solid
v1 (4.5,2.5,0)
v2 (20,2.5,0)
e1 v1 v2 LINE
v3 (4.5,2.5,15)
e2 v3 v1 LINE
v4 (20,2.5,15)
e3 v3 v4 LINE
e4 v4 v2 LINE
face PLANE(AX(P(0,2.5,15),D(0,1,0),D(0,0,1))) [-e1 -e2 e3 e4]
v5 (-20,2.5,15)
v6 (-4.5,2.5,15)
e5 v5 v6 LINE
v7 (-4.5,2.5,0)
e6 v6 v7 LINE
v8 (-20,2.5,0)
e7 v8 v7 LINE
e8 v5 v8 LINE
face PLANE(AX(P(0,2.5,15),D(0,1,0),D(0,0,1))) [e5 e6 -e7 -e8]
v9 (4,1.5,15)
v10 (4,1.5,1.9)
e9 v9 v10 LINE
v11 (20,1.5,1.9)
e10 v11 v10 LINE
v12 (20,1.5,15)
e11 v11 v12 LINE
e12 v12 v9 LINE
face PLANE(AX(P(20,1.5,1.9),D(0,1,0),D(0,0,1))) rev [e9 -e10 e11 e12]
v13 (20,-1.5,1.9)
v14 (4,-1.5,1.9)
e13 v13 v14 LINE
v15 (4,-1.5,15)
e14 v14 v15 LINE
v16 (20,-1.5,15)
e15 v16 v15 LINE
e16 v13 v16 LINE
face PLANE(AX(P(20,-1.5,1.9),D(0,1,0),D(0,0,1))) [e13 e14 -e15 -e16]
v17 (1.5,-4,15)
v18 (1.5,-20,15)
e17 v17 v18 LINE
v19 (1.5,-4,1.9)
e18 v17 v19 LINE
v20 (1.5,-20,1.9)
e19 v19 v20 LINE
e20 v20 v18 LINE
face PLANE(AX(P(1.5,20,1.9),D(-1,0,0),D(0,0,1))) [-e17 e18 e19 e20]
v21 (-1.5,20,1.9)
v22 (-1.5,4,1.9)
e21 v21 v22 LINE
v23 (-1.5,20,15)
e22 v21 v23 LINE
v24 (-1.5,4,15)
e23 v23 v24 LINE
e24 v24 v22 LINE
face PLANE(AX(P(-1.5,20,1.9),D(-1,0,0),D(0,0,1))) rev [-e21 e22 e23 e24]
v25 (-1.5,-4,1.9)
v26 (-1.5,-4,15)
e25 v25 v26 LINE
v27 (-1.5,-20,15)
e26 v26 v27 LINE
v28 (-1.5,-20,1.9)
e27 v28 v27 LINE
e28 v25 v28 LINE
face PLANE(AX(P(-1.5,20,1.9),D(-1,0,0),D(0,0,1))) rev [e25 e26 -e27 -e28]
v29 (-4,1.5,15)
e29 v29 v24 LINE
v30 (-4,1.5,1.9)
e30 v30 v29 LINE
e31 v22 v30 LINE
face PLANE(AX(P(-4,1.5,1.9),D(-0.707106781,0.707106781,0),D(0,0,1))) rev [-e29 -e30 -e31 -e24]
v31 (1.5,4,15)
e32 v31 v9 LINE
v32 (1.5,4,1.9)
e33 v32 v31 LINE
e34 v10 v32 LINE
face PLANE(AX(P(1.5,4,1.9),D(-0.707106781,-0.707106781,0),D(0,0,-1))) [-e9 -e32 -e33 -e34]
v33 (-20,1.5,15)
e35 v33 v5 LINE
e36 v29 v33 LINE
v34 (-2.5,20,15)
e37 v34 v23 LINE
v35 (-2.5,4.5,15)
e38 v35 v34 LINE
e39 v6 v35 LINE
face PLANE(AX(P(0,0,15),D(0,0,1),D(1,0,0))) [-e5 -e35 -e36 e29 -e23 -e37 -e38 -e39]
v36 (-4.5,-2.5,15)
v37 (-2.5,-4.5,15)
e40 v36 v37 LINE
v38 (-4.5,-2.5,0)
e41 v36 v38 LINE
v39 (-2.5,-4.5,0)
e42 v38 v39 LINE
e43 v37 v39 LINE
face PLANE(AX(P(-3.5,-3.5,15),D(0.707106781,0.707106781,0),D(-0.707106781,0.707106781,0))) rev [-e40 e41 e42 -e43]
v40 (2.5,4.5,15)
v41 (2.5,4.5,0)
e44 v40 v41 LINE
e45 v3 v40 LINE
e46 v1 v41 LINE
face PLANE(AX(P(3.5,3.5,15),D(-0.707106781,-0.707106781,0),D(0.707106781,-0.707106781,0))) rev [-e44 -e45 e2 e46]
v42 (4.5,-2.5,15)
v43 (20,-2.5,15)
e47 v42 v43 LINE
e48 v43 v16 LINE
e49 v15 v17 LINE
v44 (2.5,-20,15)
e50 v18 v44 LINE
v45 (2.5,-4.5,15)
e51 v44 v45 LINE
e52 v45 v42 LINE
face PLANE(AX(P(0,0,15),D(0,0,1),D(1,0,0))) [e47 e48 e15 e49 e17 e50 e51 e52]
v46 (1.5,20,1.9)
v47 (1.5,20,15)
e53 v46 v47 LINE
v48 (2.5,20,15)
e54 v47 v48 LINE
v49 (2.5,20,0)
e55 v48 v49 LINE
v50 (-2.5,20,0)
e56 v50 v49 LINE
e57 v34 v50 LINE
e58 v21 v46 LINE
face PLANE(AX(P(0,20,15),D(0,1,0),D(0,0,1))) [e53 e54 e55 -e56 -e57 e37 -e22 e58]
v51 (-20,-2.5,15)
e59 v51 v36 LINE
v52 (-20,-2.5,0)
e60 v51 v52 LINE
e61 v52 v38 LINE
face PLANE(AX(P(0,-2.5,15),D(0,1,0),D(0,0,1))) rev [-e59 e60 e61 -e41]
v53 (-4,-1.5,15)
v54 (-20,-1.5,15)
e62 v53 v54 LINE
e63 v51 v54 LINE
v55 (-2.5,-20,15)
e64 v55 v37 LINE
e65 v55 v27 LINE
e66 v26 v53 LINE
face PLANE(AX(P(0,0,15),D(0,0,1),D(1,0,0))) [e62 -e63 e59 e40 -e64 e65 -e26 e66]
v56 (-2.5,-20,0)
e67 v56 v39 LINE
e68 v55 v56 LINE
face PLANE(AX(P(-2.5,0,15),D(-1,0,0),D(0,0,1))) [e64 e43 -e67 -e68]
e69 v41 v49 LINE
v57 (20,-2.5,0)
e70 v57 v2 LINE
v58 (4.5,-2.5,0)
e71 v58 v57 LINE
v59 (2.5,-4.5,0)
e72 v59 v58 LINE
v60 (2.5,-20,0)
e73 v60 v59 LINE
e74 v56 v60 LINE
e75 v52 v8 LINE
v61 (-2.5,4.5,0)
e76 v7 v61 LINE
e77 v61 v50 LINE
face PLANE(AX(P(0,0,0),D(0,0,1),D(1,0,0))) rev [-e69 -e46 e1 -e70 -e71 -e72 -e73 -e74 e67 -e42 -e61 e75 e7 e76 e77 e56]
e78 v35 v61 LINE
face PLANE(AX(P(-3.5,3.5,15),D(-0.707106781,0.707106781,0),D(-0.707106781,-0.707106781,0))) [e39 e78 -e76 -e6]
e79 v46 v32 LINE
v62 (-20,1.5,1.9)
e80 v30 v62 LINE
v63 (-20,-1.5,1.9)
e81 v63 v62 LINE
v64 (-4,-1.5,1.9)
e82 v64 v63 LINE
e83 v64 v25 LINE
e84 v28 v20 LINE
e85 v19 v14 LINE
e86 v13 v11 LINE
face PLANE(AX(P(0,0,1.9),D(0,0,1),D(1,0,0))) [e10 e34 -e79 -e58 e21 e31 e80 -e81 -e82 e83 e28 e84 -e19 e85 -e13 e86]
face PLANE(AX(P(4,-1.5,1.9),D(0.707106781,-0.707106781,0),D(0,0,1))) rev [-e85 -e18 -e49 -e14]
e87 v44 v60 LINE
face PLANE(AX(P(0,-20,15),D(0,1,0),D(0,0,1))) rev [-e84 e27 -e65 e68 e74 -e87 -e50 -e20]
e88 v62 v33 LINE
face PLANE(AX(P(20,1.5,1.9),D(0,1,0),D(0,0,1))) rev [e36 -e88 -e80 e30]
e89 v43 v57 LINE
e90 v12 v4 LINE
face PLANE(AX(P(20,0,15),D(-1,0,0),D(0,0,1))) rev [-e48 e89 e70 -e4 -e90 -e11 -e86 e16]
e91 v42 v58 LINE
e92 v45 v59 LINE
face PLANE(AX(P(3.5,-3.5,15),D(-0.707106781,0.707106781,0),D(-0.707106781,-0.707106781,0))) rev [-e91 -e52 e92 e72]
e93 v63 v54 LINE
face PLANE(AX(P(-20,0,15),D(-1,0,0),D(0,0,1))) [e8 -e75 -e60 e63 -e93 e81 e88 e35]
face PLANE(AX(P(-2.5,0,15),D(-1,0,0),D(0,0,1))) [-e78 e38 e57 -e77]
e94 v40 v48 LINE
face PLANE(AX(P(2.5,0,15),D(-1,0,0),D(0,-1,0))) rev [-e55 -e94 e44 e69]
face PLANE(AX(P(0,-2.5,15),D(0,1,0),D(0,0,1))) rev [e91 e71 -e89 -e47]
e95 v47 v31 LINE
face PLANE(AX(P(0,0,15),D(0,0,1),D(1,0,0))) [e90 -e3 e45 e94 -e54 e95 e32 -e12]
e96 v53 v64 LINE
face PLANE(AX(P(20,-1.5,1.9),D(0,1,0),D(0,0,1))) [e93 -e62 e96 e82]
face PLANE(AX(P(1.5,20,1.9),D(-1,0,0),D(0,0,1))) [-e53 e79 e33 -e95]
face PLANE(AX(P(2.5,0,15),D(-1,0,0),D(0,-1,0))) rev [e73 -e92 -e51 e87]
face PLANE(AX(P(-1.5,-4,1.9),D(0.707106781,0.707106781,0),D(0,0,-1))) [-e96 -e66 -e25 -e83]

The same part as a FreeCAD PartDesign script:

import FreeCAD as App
import Part
import Sketcher
from FreeCAD import Vector
Q = App.Units.Quantity


def edges_at(feature, points):
    """Names of the edges that pass closest to the given points."""
    edges = feature.Shape.Edges
    near = lambda p: min(range(len(edges)), key=lambda i: edges[i].distToShape(Part.Vertex(*p))[0])
    return sorted({f"Edge{near(p) + 1}" for p in points})

doc = App.newDocument("Part")
body = doc.addObject("PartDesign::Body", "Body")

# Sketch on XY plane
sketch1 = body.newObject("Sketcher::SketchObject", "Sketch")
sketch1.AttachmentSupport = (doc.getObject("XY_Plane"), [""])
sketch1.MapMode = "FlatFace"
sketch1.addGeometry(Part.LineSegment(Vector(2.5, 4.5, 0), Vector(2.5, 20, 0)), False)
sketch1.addGeometry(Part.LineSegment(Vector(2.5, 20, 0), Vector(-2.5, 20, 0)), False)
sketch1.addGeometry(Part.LineSegment(Vector(-2.5, 20, 0), Vector(-2.5, 4.5, 0)), False)
sketch1.addGeometry(Part.LineSegment(Vector(-2.5, 4.5, 0), Vector(-4.5, 2.5, 0)), False)
sketch1.addGeometry(Part.LineSegment(Vector(-4.5, 2.5, 0), Vector(-20, 2.5, 0)), False)
sketch1.addGeometry(Part.LineSegment(Vector(-20, 2.5, 0), Vector(-20, -2.5, 0)), False)
sketch1.addGeometry(Part.LineSegment(Vector(-20, -2.5, 0), Vector(-4.5, -2.5, 0)), False)
sketch1.addGeometry(Part.LineSegment(Vector(-4.5, -2.5, 0), Vector(-2.5, -4.5, 0)), False)
sketch1.addGeometry(Part.LineSegment(Vector(-2.5, -4.5, 0), Vector(-2.5, -20, 0)), False)
sketch1.addGeometry(Part.LineSegment(Vector(-2.5, -20, 0), Vector(2.5, -20, 0)), False)
sketch1.addGeometry(Part.LineSegment(Vector(2.5, -20, 0), Vector(2.5, -4.5, 0)), False)
sketch1.addGeometry(Part.LineSegment(Vector(2.5, -4.5, 0), Vector(4.5, -2.5, 0)), False)
sketch1.addGeometry(Part.LineSegment(Vector(4.5, -2.5, 0), Vector(20, -2.5, 0)), False)
sketch1.addGeometry(Part.LineSegment(Vector(20, -2.5, 0), Vector(20, 2.5, 0)), False)
sketch1.addGeometry(Part.LineSegment(Vector(20, 2.5, 0), Vector(4.5, 2.5, 0)), False)
sketch1.addGeometry(Part.LineSegment(Vector(4.5, 2.5, 0), Vector(2.5, 4.5, 0)), False)
sketch1.addConstraint(Sketcher.Constraint("Coincident", 0, 2, 1, 1))
sketch1.addConstraint(Sketcher.Constraint("Coincident", 1, 2, 2, 1))
sketch1.addConstraint(Sketcher.Constraint("Coincident", 2, 2, 3, 1))
sketch1.addConstraint(Sketcher.Constraint("Coincident", 3, 2, 4, 1))
sketch1.addConstraint(Sketcher.Constraint("Coincident", 4, 2, 5, 1))
sketch1.addConstraint(Sketcher.Constraint("Coincident", 5, 2, 6, 1))
sketch1.addConstraint(Sketcher.Constraint("Coincident", 6, 2, 7, 1))
sketch1.addConstraint(Sketcher.Constraint("Coincident", 7, 2, 8, 1))
sketch1.addConstraint(Sketcher.Constraint("Coincident", 8, 2, 9, 1))
sketch1.addConstraint(Sketcher.Constraint("Coincident", 9, 2, 10, 1))
sketch1.addConstraint(Sketcher.Constraint("Coincident", 10, 2, 11, 1))
sketch1.addConstraint(Sketcher.Constraint("Coincident", 11, 2, 12, 1))
sketch1.addConstraint(Sketcher.Constraint("Coincident", 12, 2, 13, 1))
sketch1.addConstraint(Sketcher.Constraint("Coincident", 13, 2, 14, 1))
sketch1.addConstraint(Sketcher.Constraint("Coincident", 14, 2, 15, 1))
sketch1.addConstraint(Sketcher.Constraint("Coincident", 15, 2, 0, 1))
sketch1.addConstraint(Sketcher.Constraint("Vertical", 0))
sketch1.addConstraint(Sketcher.Constraint("Horizontal", 1))
sketch1.addConstraint(Sketcher.Constraint("Vertical", 2))
sketch1.addConstraint(Sketcher.Constraint("Horizontal", 4))
sketch1.addConstraint(Sketcher.Constraint("Vertical", 5))
sketch1.addConstraint(Sketcher.Constraint("Horizontal", 6))
sketch1.addConstraint(Sketcher.Constraint("Vertical", 8))
sketch1.addConstraint(Sketcher.Constraint("Horizontal", 9))
sketch1.addConstraint(Sketcher.Constraint("Vertical", 10))
sketch1.addConstraint(Sketcher.Constraint("Horizontal", 12))
sketch1.addConstraint(Sketcher.Constraint("Vertical", 13))
sketch1.addConstraint(Sketcher.Constraint("Horizontal", 14))
sketch1.addConstraint(Sketcher.Constraint("Symmetric", 0, 2, 8, 2, -1, 1))
sketch1.addConstraint(Sketcher.Constraint("Symmetric", 2, 2, 10, 2, -1, 1))
sketch1.addConstraint(Sketcher.Constraint("Symmetric", 3, 2, 11, 2, -1, 1))
sketch1.addConstraint(Sketcher.Constraint("Symmetric", 5, 2, 13, 2, -1, 1))
sketch1.addConstraint(Sketcher.Constraint("Symmetric", 7, 2, 10, 2, -2))
sketch1.addConstraint(Sketcher.Constraint("Symmetric", 6, 2, 11, 2, -2))
sketch1.addConstraint(Sketcher.Constraint("Perpendicular", 3, 7))
sketch1.addConstraint(Sketcher.Constraint("Perpendicular", 11, 15))
sketch1.addConstraint(Sketcher.Constraint("Horizontal", 2, 2, 15, 2))
sketch1.addConstraint(Sketcher.Constraint("Equal", 14, 0))
sketch1.addConstraint(Sketcher.Constraint("Equal", 9, 5))
sketch1.addConstraint(Sketcher.Constraint("DistanceX", 1, 2, 1, 1, Q("5 mm")))
sketch1.addConstraint(Sketcher.Constraint("DistanceX", 4, 2, 4, 1, Q("15.5 mm")))
sketch1.addConstraint(Sketcher.Constraint("DistanceY", -1, 1, 0, 2, Q("20 mm")))
pad1 = body.newObject("PartDesign::Pad", "Pad")
pad1.Profile = sketch1
pad1.Length = 15

# Sketch on XY plane
sketch2 = body.newObject("Sketcher::SketchObject", "Sketch001")
sketch2.AttachmentSupport = (doc.getObject("XY_Plane"), [""])
sketch2.MapMode = "FlatFace"
sketch2.AttachmentOffset = App.Placement(Vector(0, 0, 15), App.Rotation())
sketch2.addGeometry(Part.LineSegment(Vector(-20, 1.5, 0), Vector(-20, -1.5, 0)), False)
sketch2.addGeometry(Part.LineSegment(Vector(-20, -1.5, 0), Vector(-1.5, -1.5, 0)), False)
sketch2.addGeometry(Part.LineSegment(Vector(-1.5, -1.5, 0), Vector(-1.5, -20, 0)), False)
sketch2.addGeometry(Part.LineSegment(Vector(-1.5, -20, 0), Vector(1.5, -20, 0)), False)
sketch2.addGeometry(Part.LineSegment(Vector(1.5, -20, 0), Vector(1.5, -1.5, 0)), False)
sketch2.addGeometry(Part.LineSegment(Vector(1.5, -1.5, 0), Vector(20, -1.5, 0)), False)
sketch2.addGeometry(Part.LineSegment(Vector(20, -1.5, 0), Vector(20, 1.5, 0)), False)
sketch2.addGeometry(Part.LineSegment(Vector(20, 1.5, 0), Vector(1.5, 1.5, 0)), False)
sketch2.addGeometry(Part.LineSegment(Vector(1.5, 1.5, 0), Vector(1.5, 20, 0)), False)
sketch2.addGeometry(Part.LineSegment(Vector(1.5, 20, 0), Vector(-1.5, 20, 0)), False)
sketch2.addGeometry(Part.LineSegment(Vector(-1.5, 20, 0), Vector(-1.5, 1.5, 0)), False)
sketch2.addGeometry(Part.LineSegment(Vector(-1.5, 1.5, 0), Vector(-20, 1.5, 0)), False)
sketch2.addConstraint(Sketcher.Constraint("Coincident", 0, 2, 1, 1))
sketch2.addConstraint(Sketcher.Constraint("Coincident", 1, 2, 2, 1))
sketch2.addConstraint(Sketcher.Constraint("Coincident", 2, 2, 3, 1))
sketch2.addConstraint(Sketcher.Constraint("Coincident", 3, 2, 4, 1))
sketch2.addConstraint(Sketcher.Constraint("Coincident", 4, 2, 5, 1))
sketch2.addConstraint(Sketcher.Constraint("Coincident", 5, 2, 6, 1))
sketch2.addConstraint(Sketcher.Constraint("Coincident", 6, 2, 7, 1))
sketch2.addConstraint(Sketcher.Constraint("Coincident", 7, 2, 8, 1))
sketch2.addConstraint(Sketcher.Constraint("Coincident", 8, 2, 9, 1))
sketch2.addConstraint(Sketcher.Constraint("Coincident", 9, 2, 10, 1))
sketch2.addConstraint(Sketcher.Constraint("Coincident", 10, 2, 11, 1))
sketch2.addConstraint(Sketcher.Constraint("Coincident", 11, 2, 0, 1))
sketch2.addConstraint(Sketcher.Constraint("Vertical", 0))
sketch2.addConstraint(Sketcher.Constraint("Horizontal", 1))
sketch2.addConstraint(Sketcher.Constraint("Vertical", 2))
sketch2.addConstraint(Sketcher.Constraint("Horizontal", 3))
sketch2.addConstraint(Sketcher.Constraint("Vertical", 4))
sketch2.addConstraint(Sketcher.Constraint("Horizontal", 5))
sketch2.addConstraint(Sketcher.Constraint("Vertical", 6))
sketch2.addConstraint(Sketcher.Constraint("Horizontal", 7))
sketch2.addConstraint(Sketcher.Constraint("Vertical", 8))
sketch2.addConstraint(Sketcher.Constraint("Horizontal", 9))
sketch2.addConstraint(Sketcher.Constraint("Vertical", 10))
sketch2.addConstraint(Sketcher.Constraint("Horizontal", 11))
sketch2.addConstraint(Sketcher.Constraint("Symmetric", 0, 2, 6, 2, -1, 1))
sketch2.addConstraint(Sketcher.Constraint("Symmetric", 2, 2, 8, 2, -1, 1))
sketch2.addConstraint(Sketcher.Constraint("Symmetric", 4, 2, 10, 2, -1, 1))
sketch2.addConstraint(Sketcher.Constraint("Symmetric", 1, 2, 4, 2, -2))
sketch2.addConstraint(Sketcher.Constraint("Equal", 9, 0))
sketch2.addConstraint(Sketcher.Constraint("Equal", 11, 2))
sketch2.addConstraint(Sketcher.Constraint("DistanceX", 3, 1, 3, 2, Q("3 mm")))
sketch2.addConstraint(Sketcher.Constraint("DistanceX", 1, 1, 1, 2, Q("18.5 mm")))
pocket1 = body.newObject("PartDesign::Pocket", "Pocket")
pocket1.Profile = sketch2
pocket1.Length = 13.1
doc.recompute()

chamfer = body.newObject("PartDesign::Chamfer", "Chamfer")
chamfer.Base = (pocket1, edges_at(pocket1, [
    (-1.5, -1.5, 8.45),
    (1.5, 1.5, 8.45),
    (-1.5, 1.5, 8.45),
    (1.5, -1.5, 8.45),
]))
chamfer.Size = 2.5

doc.recompute()
